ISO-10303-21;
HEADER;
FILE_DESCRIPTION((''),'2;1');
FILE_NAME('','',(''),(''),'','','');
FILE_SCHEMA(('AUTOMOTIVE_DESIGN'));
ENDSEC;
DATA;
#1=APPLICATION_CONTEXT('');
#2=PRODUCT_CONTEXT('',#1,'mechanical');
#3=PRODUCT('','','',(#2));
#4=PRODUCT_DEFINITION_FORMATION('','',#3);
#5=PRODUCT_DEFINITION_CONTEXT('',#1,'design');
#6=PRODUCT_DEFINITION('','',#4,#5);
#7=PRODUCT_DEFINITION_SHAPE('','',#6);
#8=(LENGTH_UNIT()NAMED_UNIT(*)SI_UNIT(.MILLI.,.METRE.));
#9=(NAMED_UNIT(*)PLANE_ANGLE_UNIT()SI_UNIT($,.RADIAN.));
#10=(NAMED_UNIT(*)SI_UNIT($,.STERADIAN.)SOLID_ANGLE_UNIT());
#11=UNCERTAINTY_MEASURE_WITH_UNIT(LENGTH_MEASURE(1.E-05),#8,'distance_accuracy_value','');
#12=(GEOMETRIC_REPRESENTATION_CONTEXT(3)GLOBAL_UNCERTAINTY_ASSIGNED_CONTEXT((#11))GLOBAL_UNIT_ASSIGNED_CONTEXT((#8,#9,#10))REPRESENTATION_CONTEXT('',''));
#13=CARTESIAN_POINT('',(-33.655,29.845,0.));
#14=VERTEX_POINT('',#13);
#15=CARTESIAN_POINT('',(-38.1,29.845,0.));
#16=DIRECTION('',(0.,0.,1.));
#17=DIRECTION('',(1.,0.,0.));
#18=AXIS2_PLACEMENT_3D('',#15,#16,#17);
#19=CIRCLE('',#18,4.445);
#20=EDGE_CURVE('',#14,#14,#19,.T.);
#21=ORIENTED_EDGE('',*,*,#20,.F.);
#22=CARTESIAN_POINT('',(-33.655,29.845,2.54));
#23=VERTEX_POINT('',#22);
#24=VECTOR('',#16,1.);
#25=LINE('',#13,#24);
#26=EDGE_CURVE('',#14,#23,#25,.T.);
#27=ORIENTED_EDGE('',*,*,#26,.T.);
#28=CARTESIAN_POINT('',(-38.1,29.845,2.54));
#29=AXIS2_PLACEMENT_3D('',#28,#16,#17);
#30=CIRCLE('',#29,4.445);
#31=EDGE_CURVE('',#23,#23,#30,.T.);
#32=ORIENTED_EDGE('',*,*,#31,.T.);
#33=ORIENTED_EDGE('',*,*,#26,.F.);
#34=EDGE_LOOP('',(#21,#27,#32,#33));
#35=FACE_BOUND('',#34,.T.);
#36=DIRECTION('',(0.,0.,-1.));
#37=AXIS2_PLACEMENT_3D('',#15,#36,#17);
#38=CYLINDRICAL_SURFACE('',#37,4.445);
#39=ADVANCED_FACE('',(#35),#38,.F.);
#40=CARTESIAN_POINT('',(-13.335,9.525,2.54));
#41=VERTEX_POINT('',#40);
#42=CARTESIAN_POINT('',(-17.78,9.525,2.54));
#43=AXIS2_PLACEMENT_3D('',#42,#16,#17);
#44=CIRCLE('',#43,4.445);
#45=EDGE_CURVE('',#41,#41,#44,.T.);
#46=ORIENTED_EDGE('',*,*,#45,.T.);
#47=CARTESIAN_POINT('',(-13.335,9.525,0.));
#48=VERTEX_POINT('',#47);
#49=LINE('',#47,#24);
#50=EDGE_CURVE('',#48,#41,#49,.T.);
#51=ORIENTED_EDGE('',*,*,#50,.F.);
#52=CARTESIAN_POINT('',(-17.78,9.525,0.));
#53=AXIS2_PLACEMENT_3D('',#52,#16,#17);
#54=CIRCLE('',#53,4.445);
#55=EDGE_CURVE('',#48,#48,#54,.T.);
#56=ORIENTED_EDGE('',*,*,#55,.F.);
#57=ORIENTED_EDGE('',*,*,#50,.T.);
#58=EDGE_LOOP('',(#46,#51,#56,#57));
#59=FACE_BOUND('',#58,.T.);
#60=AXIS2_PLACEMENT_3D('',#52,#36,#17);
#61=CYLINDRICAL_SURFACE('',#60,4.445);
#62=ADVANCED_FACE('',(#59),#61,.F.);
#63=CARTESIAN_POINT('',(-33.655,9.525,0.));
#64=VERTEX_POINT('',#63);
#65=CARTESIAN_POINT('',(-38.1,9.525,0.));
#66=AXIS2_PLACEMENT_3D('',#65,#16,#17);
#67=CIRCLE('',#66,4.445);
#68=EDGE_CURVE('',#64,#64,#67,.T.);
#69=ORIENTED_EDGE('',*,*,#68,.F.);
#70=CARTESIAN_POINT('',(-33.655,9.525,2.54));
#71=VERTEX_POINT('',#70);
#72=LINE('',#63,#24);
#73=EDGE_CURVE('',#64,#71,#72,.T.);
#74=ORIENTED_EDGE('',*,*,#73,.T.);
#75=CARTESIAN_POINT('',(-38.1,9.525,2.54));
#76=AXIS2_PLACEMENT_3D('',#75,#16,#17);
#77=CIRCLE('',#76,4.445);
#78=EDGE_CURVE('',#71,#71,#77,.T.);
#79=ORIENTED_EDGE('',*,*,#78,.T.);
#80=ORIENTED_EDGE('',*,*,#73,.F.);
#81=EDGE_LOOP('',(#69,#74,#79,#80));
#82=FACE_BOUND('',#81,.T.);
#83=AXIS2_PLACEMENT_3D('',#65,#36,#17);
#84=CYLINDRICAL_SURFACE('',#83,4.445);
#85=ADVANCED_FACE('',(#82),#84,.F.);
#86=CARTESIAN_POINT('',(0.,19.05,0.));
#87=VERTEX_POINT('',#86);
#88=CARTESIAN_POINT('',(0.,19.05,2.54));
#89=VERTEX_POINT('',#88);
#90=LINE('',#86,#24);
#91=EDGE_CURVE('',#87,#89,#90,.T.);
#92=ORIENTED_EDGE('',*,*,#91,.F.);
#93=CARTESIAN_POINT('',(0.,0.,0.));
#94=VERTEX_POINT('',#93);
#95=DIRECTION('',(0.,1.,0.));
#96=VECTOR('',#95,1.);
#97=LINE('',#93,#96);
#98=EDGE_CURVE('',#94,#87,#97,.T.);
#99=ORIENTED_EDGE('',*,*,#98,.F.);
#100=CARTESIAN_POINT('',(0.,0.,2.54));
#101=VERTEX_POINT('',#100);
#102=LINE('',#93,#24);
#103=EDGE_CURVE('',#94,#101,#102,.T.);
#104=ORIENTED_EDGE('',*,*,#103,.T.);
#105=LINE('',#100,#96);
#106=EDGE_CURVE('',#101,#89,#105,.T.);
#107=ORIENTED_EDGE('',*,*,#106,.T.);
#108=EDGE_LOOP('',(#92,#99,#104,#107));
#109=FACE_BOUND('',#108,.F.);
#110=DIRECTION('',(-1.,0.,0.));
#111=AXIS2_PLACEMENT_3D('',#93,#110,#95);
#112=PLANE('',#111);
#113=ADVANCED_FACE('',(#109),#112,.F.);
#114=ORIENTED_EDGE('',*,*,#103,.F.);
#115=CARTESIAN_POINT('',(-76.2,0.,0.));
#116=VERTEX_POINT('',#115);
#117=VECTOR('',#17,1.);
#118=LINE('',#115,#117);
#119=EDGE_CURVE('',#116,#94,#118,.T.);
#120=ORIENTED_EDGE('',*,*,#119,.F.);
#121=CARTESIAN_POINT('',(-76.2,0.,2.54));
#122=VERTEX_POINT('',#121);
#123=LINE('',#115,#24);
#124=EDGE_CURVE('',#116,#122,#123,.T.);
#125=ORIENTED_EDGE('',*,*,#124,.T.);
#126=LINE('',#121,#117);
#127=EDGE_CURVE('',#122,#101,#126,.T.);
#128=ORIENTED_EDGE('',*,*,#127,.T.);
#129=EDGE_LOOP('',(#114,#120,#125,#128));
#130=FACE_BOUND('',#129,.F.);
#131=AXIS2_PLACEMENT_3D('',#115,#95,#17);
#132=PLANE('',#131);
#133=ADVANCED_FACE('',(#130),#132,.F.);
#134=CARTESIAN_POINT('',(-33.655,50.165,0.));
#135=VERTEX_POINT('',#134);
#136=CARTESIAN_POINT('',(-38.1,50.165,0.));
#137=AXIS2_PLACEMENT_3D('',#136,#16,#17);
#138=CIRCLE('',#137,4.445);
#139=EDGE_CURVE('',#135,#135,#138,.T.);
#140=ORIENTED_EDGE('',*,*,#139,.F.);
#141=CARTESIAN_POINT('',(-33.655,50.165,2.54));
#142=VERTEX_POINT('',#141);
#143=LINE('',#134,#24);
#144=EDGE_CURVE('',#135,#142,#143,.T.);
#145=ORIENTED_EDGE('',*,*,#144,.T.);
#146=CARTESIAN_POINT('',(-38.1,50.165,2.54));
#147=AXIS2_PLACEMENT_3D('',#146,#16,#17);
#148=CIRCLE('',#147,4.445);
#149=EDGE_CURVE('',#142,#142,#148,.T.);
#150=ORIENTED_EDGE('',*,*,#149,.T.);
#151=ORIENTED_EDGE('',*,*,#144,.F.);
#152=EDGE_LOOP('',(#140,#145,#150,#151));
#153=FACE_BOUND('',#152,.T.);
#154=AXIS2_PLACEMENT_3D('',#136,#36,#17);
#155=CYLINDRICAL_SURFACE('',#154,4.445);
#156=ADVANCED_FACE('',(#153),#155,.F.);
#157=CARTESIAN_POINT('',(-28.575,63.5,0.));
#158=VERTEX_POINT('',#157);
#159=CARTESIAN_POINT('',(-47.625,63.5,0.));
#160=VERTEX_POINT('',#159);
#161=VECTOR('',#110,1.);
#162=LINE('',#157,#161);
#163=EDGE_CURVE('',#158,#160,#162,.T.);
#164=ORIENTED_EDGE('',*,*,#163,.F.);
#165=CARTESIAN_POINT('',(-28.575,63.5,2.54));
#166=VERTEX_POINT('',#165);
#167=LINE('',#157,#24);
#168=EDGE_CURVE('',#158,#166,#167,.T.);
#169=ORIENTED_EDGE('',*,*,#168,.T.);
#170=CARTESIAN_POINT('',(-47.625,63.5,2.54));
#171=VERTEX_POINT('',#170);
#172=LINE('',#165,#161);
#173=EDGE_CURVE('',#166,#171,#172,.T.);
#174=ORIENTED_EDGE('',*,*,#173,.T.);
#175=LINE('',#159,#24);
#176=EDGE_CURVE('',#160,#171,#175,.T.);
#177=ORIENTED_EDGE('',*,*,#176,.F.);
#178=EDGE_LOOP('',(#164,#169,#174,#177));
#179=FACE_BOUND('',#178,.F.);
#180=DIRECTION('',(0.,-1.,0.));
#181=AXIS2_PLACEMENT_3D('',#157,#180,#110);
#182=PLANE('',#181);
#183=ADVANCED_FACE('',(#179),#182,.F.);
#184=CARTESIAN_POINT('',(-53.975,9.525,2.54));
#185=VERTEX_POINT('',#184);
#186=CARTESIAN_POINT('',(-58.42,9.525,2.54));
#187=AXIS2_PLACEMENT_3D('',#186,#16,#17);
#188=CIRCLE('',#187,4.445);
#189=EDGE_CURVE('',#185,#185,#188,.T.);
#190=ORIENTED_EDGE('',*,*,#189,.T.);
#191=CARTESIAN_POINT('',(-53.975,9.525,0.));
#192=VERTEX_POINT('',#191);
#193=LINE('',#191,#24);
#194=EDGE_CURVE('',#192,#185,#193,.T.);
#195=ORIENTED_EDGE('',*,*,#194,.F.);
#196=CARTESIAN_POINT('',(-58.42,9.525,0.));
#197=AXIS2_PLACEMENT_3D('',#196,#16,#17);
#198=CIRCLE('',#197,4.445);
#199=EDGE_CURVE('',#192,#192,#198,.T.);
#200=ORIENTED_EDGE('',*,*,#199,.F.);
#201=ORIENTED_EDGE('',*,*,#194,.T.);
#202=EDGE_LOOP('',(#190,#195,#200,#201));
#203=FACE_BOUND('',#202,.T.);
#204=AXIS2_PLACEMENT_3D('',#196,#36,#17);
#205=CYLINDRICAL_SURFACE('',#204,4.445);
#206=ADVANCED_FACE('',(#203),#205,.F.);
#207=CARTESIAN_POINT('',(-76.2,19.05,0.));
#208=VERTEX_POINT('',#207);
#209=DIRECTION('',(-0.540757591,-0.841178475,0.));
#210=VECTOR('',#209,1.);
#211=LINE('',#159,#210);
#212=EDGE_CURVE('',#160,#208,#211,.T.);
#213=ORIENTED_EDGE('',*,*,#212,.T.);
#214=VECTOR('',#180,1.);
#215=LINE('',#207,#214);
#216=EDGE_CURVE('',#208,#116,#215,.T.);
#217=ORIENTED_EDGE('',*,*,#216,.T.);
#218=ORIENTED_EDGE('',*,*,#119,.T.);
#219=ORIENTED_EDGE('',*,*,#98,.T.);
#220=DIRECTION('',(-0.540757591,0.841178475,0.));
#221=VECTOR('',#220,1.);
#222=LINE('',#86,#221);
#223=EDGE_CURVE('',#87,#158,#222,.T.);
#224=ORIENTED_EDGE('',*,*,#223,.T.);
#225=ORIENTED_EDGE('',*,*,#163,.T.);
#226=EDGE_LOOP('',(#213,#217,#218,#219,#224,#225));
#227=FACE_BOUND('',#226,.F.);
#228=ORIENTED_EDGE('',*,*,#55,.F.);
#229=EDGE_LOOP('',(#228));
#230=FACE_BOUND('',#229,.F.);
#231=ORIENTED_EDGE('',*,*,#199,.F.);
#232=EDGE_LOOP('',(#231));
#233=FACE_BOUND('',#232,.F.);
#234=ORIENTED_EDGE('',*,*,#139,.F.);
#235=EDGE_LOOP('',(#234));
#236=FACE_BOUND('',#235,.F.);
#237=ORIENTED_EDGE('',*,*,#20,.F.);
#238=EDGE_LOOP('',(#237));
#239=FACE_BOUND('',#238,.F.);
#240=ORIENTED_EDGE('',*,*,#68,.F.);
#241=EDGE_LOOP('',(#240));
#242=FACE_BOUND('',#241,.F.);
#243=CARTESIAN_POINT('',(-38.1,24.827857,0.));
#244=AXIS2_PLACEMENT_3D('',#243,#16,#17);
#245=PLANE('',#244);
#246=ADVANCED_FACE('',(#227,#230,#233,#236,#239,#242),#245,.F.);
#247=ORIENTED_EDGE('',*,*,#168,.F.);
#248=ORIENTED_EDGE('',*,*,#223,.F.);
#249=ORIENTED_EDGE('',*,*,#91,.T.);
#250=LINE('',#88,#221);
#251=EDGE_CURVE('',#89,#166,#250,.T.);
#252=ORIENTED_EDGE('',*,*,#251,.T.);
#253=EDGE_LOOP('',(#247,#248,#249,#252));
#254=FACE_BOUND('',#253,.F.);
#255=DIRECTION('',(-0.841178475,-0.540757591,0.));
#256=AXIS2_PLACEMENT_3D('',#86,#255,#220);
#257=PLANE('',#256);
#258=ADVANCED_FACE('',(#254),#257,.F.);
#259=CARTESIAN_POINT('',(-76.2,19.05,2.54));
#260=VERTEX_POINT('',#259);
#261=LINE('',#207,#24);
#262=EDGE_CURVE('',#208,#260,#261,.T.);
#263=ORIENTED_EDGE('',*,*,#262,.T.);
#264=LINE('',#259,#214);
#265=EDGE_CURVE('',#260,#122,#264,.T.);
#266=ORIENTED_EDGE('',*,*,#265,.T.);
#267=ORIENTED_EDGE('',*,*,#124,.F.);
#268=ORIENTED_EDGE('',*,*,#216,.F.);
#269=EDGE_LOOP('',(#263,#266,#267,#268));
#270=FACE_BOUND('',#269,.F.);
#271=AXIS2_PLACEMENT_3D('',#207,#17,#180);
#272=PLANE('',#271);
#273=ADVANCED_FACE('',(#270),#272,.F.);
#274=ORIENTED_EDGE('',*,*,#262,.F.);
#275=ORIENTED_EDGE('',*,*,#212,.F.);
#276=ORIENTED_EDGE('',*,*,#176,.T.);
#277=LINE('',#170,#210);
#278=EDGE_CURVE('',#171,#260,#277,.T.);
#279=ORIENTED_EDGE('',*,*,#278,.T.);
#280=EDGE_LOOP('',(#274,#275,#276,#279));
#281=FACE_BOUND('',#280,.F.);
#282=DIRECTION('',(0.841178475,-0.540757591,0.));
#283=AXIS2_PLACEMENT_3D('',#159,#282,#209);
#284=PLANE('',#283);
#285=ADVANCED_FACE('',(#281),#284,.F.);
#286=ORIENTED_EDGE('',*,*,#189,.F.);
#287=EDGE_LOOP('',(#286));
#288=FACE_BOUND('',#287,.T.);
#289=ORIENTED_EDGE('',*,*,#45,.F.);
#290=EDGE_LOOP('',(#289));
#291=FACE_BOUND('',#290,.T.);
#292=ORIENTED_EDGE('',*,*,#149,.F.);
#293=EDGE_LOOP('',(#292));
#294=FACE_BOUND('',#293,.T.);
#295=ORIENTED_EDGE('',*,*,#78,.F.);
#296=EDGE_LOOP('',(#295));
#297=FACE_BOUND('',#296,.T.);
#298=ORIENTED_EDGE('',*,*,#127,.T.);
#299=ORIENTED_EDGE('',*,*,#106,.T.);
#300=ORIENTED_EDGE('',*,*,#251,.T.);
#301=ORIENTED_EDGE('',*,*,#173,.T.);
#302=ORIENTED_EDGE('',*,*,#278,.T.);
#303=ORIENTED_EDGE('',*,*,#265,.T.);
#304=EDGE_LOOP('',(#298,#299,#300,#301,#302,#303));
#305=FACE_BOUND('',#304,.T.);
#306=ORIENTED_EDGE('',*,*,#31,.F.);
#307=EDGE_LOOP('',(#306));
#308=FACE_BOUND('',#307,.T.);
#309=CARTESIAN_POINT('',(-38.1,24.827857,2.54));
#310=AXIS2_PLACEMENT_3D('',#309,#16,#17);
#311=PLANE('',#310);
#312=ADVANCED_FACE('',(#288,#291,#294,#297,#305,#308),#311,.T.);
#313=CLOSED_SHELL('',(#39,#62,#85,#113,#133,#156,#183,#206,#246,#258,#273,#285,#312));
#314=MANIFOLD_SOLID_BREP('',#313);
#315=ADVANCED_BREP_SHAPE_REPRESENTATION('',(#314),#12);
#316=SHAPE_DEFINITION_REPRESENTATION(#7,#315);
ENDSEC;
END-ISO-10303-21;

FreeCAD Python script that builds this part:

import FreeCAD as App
import Part
import Sketcher
Q = App.Units.Quantity

doc = App.newDocument("Part")
body = doc.addObject("PartDesign::Body", "Body")

sketch1 = body.newObject("Sketcher::SketchObject", "Sketch")
sketch1.AttachmentSupport = (doc.getObject("XY_Plane"), [""])
sketch1.MapMode = "FlatFace"
sketch1.addGeometry([
    Part.LineSegment(App.Vector(-76.2, 0, 0), App.Vector(0, 0, 0)),
    Part.LineSegment(App.Vector(0, 0, 0), App.Vector(0, 19.1, 0)),
    Part.LineSegment(App.Vector(0, 19.1, 0), App.Vector(-28.6, 63.5, 0)),
    Part.LineSegment(App.Vector(-28.6, 63.5, 0), App.Vector(-47.6, 63.5, 0)),
    Part.LineSegment(App.Vector(-47.6, 63.5, 0), App.Vector(-76.2, 19.1, 0)),
    Part.LineSegment(App.Vector(-76.2, 19.1, 0), App.Vector(-76.2, 0, 0)),
    Part.Circle(App.Vector(-58.4, 9.5, 0), App.Vector(0, 0, 1), 4.4),
    Part.Circle(App.Vector(-38.1, 9.5, 0), App.Vector(0, 0, 1), 4.4),
    Part.Circle(App.Vector(-38.1, 29.8, 0), App.Vector(0, 0, 1), 4.4),
    Part.Circle(App.Vector(-17.8, 9.5, 0), App.Vector(0, 0, 1), 4.4),
    Part.Circle(App.Vector(-38.1, 50.2, 0), App.Vector(0, 0, 1), 4.4),
], False)
sketch1.addConstraint([
    Sketcher.Constraint("Coincident", 0, 2, 1, 1),
    Sketcher.Constraint("Coincident", 1, 2, 2, 1),
    Sketcher.Constraint("Coincident", 2, 2, 3, 1),
    Sketcher.Constraint("Coincident", 3, 2, 4, 1),
    Sketcher.Constraint("Coincident", 4, 2, 5, 1),
    Sketcher.Constraint("Coincident", 5, 2, 0, 1),
    Sketcher.Constraint("Horizontal", 0),
    Sketcher.Constraint("Vertical", 1),
    Sketcher.Constraint("Horizontal", 3),
    Sketcher.Constraint("Vertical", 5),
    Sketcher.Constraint("Coincident", 0, 2, -1, 1),
    Sketcher.Constraint("Equal", 6, 7),
    Sketcher.Constraint("Equal", 7, 8),
    Sketcher.Constraint("Equal", 8, 9),
    Sketcher.Constraint("Equal", 9, 10),
    Sketcher.Constraint("Horizontal", 6, 3, 7, 3),
    Sketcher.Constraint("Horizontal", 7, 3, 9, 3),
    Sketcher.Constraint("Horizontal", 1, 2, 4, 2),
    Sketcher.Constraint("Vertical", 7, 3, 8, 3),
    Sketcher.Constraint("Vertical", 8, 3, 10, 3),
    Sketcher.Constraint("Equal", 3, 1),
    Sketcher.Constraint("Equal", 2, 4),
    Sketcher.Constraint("Diameter", 6, Q("0.35 in")),
    Sketcher.Constraint("DistanceX", 0, 1, 0, 2, Q("3 in")),
    Sketcher.Constraint("DistanceX", 3, 2, 3, 1, Q("0.75 in")),
    Sketcher.Constraint("DistanceX", 6, 3, -1, 1, Q("2.3 in")),
    Sketcher.Constraint("DistanceX", 7, 3, -1, 1, Q("1.5 in")),
    Sketcher.Constraint("DistanceX", 9, 3, -1, 1, Q("0.7 in")),
    Sketcher.Constraint("DistanceY", -1, 1, 2, 2, Q("2.5 in")),
    Sketcher.Constraint("DistanceY", 7, 3, 8, 3, Q("0.8 in")),
    Sketcher.Constraint("DistanceY", 8, 3, 10, 3, Q("0.8 in")),
    Sketcher.Constraint("DistanceY", -1, 1, 6, 3, Q("0.375 in")),
])
pad1 = body.newObject("PartDesign::Pad", "Pad")
pad1.Profile = sketch1
pad1.Length = Q("0.1 in")

doc.recompute()
